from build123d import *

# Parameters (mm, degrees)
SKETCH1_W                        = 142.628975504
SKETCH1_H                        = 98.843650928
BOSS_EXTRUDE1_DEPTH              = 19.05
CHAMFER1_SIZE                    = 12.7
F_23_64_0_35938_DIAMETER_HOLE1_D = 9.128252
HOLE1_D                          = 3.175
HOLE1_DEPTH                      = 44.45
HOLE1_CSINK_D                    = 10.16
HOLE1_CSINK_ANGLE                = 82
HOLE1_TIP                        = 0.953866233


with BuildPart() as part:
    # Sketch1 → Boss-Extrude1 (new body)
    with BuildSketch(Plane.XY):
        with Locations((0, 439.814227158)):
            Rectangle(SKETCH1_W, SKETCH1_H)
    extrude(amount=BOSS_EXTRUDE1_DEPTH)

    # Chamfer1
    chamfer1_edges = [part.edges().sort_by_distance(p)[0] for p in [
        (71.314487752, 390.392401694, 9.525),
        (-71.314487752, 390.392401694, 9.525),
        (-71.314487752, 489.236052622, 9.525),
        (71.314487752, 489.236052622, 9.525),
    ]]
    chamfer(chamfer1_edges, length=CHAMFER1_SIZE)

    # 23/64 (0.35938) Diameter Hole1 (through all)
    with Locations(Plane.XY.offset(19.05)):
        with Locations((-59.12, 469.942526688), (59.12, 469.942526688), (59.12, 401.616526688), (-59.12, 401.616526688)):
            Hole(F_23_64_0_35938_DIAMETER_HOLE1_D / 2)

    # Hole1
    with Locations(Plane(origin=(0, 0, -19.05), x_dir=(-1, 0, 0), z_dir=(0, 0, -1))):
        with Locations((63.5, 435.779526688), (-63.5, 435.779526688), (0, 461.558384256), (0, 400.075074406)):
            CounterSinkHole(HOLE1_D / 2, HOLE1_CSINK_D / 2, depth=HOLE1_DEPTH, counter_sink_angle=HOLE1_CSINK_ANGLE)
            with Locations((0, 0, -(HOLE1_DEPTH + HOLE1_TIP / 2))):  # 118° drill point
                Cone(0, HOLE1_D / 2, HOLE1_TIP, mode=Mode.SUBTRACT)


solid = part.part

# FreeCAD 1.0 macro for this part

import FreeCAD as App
import Part
import Sketcher
Q = App.Units.Quantity


def edges_at(feature, points):
    """Names of the edges that pass closest to the given points."""
    edges = feature.Shape.Edges
    near = lambda p: min(range(len(edges)), key=lambda i: edges[i].distToShape(Part.Vertex(*p))[0])
    return sorted({f"Edge{near(p) + 1}" for p in points})

doc = App.newDocument("Part")
body = doc.addObject("PartDesign::Body", "Body")

# Sketch on XY plane
sketch1 = body.newObject("Sketcher::SketchObject", "Sketch")
sketch1.AttachmentSupport = (doc.getObject("XY_Plane"), [""])
sketch1.MapMode = "FlatFace"
sketch1.addGeometry(Part.LineSegment(App.Vector(-71, 489, 0), App.Vector(-71, 390, 0)), False)
sketch1.addGeometry(Part.LineSegment(App.Vector(-71, 390, 0), App.Vector(71, 390, 0)), False)
sketch1.addGeometry(Part.LineSegment(App.Vector(71, 390, 0), App.Vector(71, 489, 0)), False)
sketch1.addGeometry(Part.LineSegment(App.Vector(71, 489, 0), App.Vector(-71, 489, 0)), False)
sketch1.addConstraint(Sketcher.Constraint("Coincident", 0, 2, 1, 1))
sketch1.addConstraint(Sketcher.Constraint("Coincident", 1, 2, 2, 1))
sketch1.addConstraint(Sketcher.Constraint("Coincident", 2, 2, 3, 1))
sketch1.addConstraint(Sketcher.Constraint("Coincident", 3, 2, 0, 1))
sketch1.addConstraint(Sketcher.Constraint("Vertical", 0))
sketch1.addConstraint(Sketcher.Constraint("Horizontal", 1))
sketch1.addConstraint(Sketcher.Constraint("Vertical", 2))
sketch1.addConstraint(Sketcher.Constraint("Horizontal", 3))
sketch1.addConstraint(Sketcher.Constraint("DistanceY", 0, 2, 0, 1, Q("98.843651 mm")))
sketch1.addConstraint(Sketcher.Constraint("DistanceY", -1, 1, 0, 2, Q("390.392402 mm")))
sketch1.addConstraint(Sketcher.Constraint("DistanceX", 1, 1, 1, 2, Q("142.628976 mm")))
sketch1.addConstraint(Sketcher.Constraint("DistanceX", 0, 2, -1, 1, Q("71.314488 mm")))
pad1 = body.newObject("PartDesign::Pad", "Pad")
pad1.Profile = sketch1
pad1.Length = Q("0.75 in")
doc.recompute()

chamfer = body.newObject("PartDesign::Chamfer", "Chamfer")
chamfer.Base = (pad1, edges_at(pad1, [
    (71.314, 390.392, 9.525),
    (-71.314, 390.392, 9.525),
    (-71.314, 489.236, 9.525),
    (71.314, 489.236, 9.525),
]))
chamfer.Size = Q("0.5 in")

# Sketch on XY plane
sketch2 = body.newObject("Sketcher::SketchObject", "Sketch001")
sketch2.AttachmentSupport = (doc.getObject("XY_Plane"), [""])
sketch2.MapMode = "FlatFace"
sketch2.AttachmentOffset = App.Placement(App.Vector(0, 0, 0.75 * 25.4), App.Rotation())
sketch2.addGeometry(Part.Circle(App.Vector(-59.1, 469.9, 0), App.Vector(0, 0, 1), 4.6), False)
sketch2.addGeometry(Part.Circle(App.Vector(59.1, 469.9, 0), App.Vector(0, 0, 1), 4.6), False)
sketch2.addGeometry(Part.Circle(App.Vector(59.1, 401.6, 0), App.Vector(0, 0, 1), 4.6), False)
sketch2.addGeometry(Part.Circle(App.Vector(-59.1, 401.6, 0), App.Vector(0, 0, 1), 4.6), False)
sketch2.addConstraint(Sketcher.Constraint("Equal", 0, 1))
sketch2.addConstraint(Sketcher.Constraint("Equal", 1, 2))
sketch2.addConstraint(Sketcher.Constraint("Equal", 2, 3))
sketch2.addConstraint(Sketcher.Constraint("Symmetric", 0, 3, 1, 3, -2))
sketch2.addConstraint(Sketcher.Constraint("Symmetric", 2, 3, 3, 3, -2))
sketch2.addConstraint(Sketcher.Constraint("Vertical", 1, 3, 2, 3))
sketch2.addConstraint(Sketcher.Constraint("DistanceY", 2, 3, 1, 3, Q("2.69 in")))
sketch2.addConstraint(Sketcher.Constraint("Diameter", 0, Q("9.128252 mm")))
sketch2.addConstraint(Sketcher.Constraint("DistanceX", 0, 3, -1, 1, Q("59.12 mm")))
sketch2.addConstraint(Sketcher.Constraint("DistanceY", -1, 1, 0, 3, Q("469.942527 mm")))
doc.recompute()
hole = body.newObject("PartDesign::Hole", "Hole")
hole.Profile = sketch2
hole.ThreadType = "None"
hole.Diameter = 9.128252
hole.DepthType = "ThroughAll"

# Sketch on XY plane
sketch3 = body.newObject("Sketcher::SketchObject", "Sketch002")
sketch3.AttachmentSupport = (doc.getObject("XY_Plane"), [""])
sketch3.MapMode = "FlatFace"
sketch3.AttachmentOffset = App.Placement(App.Vector(0, 0, -0.75 * 25.4), App.Rotation())
sketch3.addGeometry(Part.Circle(App.Vector(-63.5, 435.8, 0), App.Vector(0, 0, 1), 1.6), False)
sketch3.addGeometry(Part.Circle(App.Vector(63.5, 435.8, 0), App.Vector(0, 0, 1), 1.6), False)
sketch3.addGeometry(Part.Circle(App.Vector(0, 461.6, 0), App.Vector(0, 0, 1), 1.6), False)
sketch3.addGeometry(Part.Circle(App.Vector(0, 400.1, 0), App.Vector(0, 0, 1), 1.6), False)
sketch3.addConstraint(Sketcher.Constraint("Equal", 0, 1))
sketch3.addConstraint(Sketcher.Constraint("Equal", 1, 2))
sketch3.addConstraint(Sketcher.Constraint("Equal", 2, 3))
sketch3.addConstraint(Sketcher.Constraint("Symmetric", 0, 3, 1, 3, -2))
sketch3.addConstraint(Sketcher.Constraint("PointOnObject", 2, 3, -2))
sketch3.addConstraint(Sketcher.Constraint("PointOnObject", 3, 3, -2))
sketch3.addConstraint(Sketcher.Constraint("Diameter", 0, Q("0.125 in")))
sketch3.addConstraint(Sketcher.Constraint("DistanceX", 0, 3, 1, 3, Q("5 in")))
sketch3.addConstraint(Sketcher.Constraint("DistanceY", 3, 3, 2, 3, Q("61.48331 mm")))
sketch3.addConstraint(Sketcher.Constraint("DistanceY", -1, 1, 0, 3, Q("435.779527 mm")))
sketch3.addConstraint(Sketcher.Constraint("DistanceY", -1, 1, 2, 3, Q("461.558384 mm")))
doc.recompute()
hole2 = body.newObject("PartDesign::Hole", "Hole001")
hole2.Profile = sketch3
hole2.ThreadType = "None"
hole2.Diameter = Q("0.125 in")
hole2.DepthType = "Dimension"
hole2.Depth = Q("1.75 in")
hole2.DrillPoint = "Angled"
hole2.DrillPointAngle = 118
hole2.HoleCutType = "Countersink"
hole2.HoleCutDiameter = Q("0.4 in")
hole2.HoleCutCountersinkAngle = 82
hole2.Reversed = True

doc.recompute()
